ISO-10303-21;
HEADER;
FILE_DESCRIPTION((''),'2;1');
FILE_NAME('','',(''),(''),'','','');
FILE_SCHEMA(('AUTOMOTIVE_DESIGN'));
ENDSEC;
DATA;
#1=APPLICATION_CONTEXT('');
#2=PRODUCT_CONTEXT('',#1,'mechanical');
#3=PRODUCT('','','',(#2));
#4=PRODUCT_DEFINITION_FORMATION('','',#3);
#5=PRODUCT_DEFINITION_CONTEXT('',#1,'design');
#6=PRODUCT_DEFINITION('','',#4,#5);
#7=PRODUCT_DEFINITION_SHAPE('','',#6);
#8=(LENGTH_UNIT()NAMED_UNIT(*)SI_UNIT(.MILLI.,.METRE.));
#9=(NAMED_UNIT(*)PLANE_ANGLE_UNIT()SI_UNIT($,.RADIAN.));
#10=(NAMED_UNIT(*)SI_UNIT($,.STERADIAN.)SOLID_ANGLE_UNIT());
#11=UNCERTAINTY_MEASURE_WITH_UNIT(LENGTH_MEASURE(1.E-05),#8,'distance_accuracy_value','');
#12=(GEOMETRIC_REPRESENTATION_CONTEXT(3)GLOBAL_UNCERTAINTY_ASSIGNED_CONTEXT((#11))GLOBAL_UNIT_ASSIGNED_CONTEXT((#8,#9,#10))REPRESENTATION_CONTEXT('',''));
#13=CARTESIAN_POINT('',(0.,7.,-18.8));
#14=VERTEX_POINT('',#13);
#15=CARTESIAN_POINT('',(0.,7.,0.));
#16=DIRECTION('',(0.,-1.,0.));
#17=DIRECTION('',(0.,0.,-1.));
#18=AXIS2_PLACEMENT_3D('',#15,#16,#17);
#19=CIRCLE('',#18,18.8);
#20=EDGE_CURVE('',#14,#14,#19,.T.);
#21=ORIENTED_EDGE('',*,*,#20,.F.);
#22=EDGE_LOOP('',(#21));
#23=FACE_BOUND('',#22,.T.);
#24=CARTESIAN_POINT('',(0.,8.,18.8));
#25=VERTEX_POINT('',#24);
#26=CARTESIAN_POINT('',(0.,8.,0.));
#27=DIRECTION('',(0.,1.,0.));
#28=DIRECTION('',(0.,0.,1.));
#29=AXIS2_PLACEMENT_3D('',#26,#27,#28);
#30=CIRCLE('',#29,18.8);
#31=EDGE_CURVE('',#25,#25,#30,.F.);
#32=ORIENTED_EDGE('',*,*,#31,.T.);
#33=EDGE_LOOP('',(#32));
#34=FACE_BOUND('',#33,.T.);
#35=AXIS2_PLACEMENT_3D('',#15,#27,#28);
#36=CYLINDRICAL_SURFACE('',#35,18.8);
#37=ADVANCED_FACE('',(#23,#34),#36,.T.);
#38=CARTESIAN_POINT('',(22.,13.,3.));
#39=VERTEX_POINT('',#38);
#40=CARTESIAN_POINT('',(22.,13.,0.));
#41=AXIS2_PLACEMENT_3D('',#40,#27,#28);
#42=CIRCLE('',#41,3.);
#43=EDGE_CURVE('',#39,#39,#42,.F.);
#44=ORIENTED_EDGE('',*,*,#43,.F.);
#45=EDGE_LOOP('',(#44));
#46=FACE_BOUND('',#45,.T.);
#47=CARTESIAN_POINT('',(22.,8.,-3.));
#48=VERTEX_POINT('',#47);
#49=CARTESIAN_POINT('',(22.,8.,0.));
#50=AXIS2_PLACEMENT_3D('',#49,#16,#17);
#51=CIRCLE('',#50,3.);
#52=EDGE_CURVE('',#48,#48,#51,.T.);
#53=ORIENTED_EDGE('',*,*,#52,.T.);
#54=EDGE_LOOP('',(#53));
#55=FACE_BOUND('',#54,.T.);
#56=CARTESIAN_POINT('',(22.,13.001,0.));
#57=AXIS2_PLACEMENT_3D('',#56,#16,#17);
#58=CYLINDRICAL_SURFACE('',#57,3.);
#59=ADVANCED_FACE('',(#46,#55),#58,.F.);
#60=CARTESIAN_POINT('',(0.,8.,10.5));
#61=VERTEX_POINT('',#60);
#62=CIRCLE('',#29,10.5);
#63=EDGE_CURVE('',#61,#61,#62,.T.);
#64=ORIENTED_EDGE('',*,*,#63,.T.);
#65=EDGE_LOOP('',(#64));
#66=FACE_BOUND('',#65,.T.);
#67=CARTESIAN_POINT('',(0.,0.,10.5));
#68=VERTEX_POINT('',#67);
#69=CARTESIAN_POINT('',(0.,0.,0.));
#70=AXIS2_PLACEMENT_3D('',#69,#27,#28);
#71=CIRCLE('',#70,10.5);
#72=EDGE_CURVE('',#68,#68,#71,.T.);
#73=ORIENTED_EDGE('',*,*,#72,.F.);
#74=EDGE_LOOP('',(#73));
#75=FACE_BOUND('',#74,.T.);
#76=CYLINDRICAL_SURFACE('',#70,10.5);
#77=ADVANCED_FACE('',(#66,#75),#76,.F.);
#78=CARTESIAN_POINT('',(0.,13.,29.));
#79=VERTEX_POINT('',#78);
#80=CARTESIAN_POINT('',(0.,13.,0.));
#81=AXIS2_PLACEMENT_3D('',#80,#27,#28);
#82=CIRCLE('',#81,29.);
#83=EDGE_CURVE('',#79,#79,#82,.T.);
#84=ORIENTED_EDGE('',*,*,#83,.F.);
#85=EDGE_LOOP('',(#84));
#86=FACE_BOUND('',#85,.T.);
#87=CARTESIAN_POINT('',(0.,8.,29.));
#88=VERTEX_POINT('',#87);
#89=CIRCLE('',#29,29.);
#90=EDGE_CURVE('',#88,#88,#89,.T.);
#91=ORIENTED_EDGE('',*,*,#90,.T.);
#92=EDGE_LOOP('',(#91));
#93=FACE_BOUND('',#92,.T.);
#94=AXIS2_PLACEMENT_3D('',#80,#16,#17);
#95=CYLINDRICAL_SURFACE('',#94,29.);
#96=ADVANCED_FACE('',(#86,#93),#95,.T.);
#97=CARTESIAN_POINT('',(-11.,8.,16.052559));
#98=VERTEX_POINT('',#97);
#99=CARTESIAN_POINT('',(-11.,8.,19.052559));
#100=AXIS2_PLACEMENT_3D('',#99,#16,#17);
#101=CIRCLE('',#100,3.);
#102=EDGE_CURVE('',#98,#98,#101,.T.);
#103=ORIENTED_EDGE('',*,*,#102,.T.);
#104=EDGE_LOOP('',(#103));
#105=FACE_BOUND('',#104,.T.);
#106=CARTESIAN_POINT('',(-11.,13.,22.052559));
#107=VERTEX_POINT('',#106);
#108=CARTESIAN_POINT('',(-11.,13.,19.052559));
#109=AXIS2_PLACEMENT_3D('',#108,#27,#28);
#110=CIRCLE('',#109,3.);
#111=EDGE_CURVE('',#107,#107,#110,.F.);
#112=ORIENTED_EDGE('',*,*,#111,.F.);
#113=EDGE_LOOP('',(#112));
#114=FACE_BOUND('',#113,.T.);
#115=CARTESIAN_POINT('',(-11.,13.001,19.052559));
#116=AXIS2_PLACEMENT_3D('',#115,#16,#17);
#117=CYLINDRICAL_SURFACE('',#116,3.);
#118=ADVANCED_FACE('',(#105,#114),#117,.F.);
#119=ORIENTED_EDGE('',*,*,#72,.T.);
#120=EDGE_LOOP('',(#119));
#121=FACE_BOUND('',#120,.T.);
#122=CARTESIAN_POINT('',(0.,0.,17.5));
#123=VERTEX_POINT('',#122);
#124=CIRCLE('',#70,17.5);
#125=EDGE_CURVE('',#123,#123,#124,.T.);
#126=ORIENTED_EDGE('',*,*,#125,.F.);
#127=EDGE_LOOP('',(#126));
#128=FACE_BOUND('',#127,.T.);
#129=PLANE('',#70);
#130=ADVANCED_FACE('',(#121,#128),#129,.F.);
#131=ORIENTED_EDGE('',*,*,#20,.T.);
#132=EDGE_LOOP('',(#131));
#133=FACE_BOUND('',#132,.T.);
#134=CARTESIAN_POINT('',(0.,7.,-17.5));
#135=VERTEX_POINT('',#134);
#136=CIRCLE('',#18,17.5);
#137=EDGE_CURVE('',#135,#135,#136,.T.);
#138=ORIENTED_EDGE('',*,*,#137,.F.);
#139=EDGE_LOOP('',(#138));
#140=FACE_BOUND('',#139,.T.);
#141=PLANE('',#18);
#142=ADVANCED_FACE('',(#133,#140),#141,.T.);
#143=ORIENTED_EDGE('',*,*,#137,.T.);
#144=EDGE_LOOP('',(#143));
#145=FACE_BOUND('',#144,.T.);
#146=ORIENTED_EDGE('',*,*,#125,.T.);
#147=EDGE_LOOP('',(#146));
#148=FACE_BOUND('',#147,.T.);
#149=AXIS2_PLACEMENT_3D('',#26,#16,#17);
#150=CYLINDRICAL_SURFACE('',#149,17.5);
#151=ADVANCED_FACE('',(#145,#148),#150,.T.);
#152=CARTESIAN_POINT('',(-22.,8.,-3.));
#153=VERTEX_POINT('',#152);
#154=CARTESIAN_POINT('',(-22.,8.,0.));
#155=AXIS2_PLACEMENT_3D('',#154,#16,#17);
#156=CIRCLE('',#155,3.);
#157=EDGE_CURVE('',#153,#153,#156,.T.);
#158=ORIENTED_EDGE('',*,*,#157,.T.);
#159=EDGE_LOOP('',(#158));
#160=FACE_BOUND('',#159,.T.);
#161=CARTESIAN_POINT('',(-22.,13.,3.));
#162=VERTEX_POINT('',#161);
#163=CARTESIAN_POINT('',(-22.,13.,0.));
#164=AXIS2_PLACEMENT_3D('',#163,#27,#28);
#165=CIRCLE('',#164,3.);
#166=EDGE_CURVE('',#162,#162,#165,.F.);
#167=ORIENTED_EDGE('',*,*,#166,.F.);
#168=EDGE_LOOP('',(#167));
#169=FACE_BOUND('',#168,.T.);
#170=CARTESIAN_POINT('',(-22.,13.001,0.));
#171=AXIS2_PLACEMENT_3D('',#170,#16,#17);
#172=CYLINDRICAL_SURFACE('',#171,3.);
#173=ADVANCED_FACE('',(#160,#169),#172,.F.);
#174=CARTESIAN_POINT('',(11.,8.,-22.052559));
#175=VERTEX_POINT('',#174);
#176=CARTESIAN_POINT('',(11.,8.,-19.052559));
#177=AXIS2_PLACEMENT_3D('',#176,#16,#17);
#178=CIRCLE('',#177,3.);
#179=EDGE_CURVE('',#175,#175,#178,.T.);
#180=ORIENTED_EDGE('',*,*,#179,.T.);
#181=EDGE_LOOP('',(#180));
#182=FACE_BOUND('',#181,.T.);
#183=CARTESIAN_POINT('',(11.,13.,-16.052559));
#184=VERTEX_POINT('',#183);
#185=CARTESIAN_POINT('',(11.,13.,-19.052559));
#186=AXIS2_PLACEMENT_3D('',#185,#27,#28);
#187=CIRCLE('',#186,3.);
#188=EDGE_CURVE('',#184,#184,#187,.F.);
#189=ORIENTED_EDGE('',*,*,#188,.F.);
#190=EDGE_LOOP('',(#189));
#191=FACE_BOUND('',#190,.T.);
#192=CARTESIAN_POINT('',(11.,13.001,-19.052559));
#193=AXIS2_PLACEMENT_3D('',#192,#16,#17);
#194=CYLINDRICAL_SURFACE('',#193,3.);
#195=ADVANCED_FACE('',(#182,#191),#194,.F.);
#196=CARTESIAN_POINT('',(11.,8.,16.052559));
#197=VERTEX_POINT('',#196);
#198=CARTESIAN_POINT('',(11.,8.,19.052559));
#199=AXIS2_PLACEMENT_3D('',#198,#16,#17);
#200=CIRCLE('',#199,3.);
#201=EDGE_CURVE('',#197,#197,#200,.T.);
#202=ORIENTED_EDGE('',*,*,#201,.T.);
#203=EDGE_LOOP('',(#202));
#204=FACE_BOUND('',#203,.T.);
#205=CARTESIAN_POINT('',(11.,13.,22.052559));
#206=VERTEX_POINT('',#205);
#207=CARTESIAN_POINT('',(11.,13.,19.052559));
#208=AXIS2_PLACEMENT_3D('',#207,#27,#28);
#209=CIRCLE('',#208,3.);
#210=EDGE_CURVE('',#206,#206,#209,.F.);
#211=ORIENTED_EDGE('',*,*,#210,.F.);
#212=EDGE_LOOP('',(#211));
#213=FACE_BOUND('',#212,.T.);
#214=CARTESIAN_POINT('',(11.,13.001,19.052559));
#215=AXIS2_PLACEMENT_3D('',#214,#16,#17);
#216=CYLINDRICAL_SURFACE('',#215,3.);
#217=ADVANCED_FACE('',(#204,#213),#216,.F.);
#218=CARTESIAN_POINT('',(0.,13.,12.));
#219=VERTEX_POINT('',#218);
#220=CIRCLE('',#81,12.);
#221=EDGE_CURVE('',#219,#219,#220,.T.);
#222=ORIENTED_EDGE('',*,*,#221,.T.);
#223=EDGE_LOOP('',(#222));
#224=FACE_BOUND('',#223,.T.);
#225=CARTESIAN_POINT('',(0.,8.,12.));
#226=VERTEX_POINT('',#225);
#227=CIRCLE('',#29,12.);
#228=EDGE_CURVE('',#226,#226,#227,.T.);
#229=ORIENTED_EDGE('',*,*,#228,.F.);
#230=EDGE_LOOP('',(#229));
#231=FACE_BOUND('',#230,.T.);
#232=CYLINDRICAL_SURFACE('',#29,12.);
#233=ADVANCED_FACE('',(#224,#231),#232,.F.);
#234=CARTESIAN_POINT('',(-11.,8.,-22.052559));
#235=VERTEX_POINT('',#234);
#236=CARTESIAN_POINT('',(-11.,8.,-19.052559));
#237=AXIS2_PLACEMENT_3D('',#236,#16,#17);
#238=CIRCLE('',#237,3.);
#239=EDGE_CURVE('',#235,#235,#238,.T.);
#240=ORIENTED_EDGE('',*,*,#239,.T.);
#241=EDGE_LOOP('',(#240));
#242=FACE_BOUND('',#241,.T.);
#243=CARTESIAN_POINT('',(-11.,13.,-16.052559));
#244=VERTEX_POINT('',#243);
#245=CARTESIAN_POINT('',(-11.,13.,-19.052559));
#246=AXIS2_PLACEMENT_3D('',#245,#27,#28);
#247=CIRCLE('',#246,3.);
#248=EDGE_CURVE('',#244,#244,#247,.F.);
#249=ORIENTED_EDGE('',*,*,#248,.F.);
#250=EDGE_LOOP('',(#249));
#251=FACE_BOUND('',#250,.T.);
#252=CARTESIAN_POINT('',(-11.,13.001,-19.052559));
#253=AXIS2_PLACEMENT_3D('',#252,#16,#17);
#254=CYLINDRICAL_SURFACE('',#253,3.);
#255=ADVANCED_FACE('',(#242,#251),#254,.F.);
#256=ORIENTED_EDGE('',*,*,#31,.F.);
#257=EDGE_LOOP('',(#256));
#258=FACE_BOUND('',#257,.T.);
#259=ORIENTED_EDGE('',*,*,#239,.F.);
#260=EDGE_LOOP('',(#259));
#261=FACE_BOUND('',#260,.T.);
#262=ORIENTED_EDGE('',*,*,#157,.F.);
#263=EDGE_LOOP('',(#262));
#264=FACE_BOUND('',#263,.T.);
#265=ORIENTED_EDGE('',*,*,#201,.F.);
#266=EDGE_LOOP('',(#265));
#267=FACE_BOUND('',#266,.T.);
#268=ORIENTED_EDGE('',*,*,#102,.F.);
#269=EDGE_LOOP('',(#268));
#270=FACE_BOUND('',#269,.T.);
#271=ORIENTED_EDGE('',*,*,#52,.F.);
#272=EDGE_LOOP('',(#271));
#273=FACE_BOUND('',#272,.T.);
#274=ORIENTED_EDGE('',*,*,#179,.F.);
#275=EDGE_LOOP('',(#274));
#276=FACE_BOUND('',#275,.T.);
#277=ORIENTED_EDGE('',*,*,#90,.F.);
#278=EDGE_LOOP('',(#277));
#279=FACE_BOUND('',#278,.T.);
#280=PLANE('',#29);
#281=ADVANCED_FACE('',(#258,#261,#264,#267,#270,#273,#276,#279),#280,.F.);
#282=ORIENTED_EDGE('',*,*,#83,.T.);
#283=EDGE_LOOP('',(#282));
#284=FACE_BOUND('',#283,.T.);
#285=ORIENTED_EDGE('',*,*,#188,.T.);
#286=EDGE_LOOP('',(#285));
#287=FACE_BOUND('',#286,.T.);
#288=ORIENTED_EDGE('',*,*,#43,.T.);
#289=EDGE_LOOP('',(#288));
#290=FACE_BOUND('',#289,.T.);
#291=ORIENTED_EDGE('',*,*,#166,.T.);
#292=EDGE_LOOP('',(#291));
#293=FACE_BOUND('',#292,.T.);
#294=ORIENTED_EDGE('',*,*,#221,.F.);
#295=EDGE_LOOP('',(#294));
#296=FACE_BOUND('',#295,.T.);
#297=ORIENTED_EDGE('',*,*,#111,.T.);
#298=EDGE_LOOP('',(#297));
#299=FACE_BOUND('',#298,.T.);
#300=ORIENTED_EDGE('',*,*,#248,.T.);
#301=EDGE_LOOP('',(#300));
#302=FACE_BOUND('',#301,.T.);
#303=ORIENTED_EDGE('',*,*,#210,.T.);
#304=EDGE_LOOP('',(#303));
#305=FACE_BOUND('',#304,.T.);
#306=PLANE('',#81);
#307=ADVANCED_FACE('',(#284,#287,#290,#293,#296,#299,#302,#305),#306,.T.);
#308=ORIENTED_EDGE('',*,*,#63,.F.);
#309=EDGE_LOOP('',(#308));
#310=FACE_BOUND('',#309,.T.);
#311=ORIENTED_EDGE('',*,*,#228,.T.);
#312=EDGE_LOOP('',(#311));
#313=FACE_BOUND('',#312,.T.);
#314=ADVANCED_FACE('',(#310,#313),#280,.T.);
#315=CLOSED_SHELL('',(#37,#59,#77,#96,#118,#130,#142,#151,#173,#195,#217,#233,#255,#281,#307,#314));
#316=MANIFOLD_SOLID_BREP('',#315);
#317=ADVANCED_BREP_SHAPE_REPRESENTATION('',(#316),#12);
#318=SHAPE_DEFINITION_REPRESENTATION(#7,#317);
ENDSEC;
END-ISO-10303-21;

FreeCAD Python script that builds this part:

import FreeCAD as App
import Part
import Sketcher
from FreeCAD import Vector
Q = App.Units.Quantity

doc = App.newDocument("Part")
body = doc.addObject("PartDesign::Body", "Body")

# Sketch on XZ plane
sketch1 = body.newObject("Sketcher::SketchObject", "Sketch")
sketch1.AttachmentSupport = (doc.getObject("XZ_Plane"), [""])
sketch1.MapMode = "FlatFace"
sketch1.addGeometry(Part.Circle(Vector(0, 0, 0), Vector(0, 0, 1), 18), False)
sketch1.addConstraint([
    Sketcher.Constraint("Coincident", 0, 3, -1, 1),
    Sketcher.Constraint("Diameter", 0, Q("35 mm")),
])
pad1 = body.newObject("PartDesign::Pad", "Pad")
pad1.Profile = sketch1
pad1.Length = 8
pad1.Reversed = True

# Sketch on XZ plane
sketch2 = body.newObject("Sketcher::SketchObject", "Sketch001")
sketch2.AttachmentSupport = (doc.getObject("XZ_Plane"), [""])
sketch2.MapMode = "FlatFace"
sketch2.AttachmentOffset = App.Placement(Vector(0, 0, -8), App.Rotation())
sketch2.addGeometry(Part.Circle(Vector(0, 0, 0), Vector(0, 0, 1), 29), False)
sketch2.addConstraint([
    Sketcher.Constraint("Coincident", 0, 3, -1, 1),
    Sketcher.Constraint("Diameter", 0, Q("58 mm")),
])
pad2 = body.newObject("PartDesign::Pad", "Pad001")
pad2.Profile = sketch2
pad2.Length = 5
pad2.Reversed = True

# Sketch on XZ plane
sketch3 = body.newObject("Sketcher::SketchObject", "Sketch002")
sketch3.AttachmentSupport = (doc.getObject("XZ_Plane"), [""])
sketch3.MapMode = "FlatFace"
sketch3.AttachmentOffset = App.Placement(Vector(0, 0, -13), App.Rotation())
sketch3.addGeometry(Part.Circle(Vector(0, 0, 0), Vector(0, 0, 1), 12), False)
sketch3.addConstraint([
    Sketcher.Constraint("Coincident", 0, 3, -1, 1),
    Sketcher.Constraint("Diameter", 0, Q("24 mm")),
])
pocket1 = body.newObject("PartDesign::Pocket", "Pocket")
pocket1.Profile = sketch3
pocket1.Length = 5
pocket1.Reversed = True

# Sketch on XZ plane
sketch4 = body.newObject("Sketcher::SketchObject", "Sketch003")
sketch4.AttachmentSupport = (doc.getObject("XZ_Plane"), [""])
sketch4.MapMode = "FlatFace"
sketch4.AttachmentOffset = App.Placement(Vector(0, 0, -8), App.Rotation())
sketch4.addGeometry(Part.Circle(Vector(0, 0, 0), Vector(0, 0, 1), 10), False)
sketch4.addConstraint([
    Sketcher.Constraint("Coincident", 0, 3, -1, 1),
    Sketcher.Constraint("Diameter", 0, Q("21 mm")),
])
pocket2 = body.newObject("PartDesign::Pocket", "Pocket001")
pocket2.Profile = sketch4
pocket2.Type = "ThroughAll"
pocket2.Reversed = True

# Sketch on XZ plane
sketch5 = body.newObject("Sketcher::SketchObject", "Sketch004")
sketch5.AttachmentSupport = (doc.getObject("XZ_Plane"), [""])
sketch5.MapMode = "FlatFace"
sketch5.AttachmentOffset = App.Placement(Vector(0, 0, -8), App.Rotation())
sketch5.addGeometry(Part.Circle(Vector(22, 0, 0), Vector(0, 0, 1), 3), False)
sketch5.addConstraint([
    Sketcher.Constraint("PointOnObject", 0, 3, -1),
    Sketcher.Constraint("Diameter", 0, Q("6 mm")),
    Sketcher.Constraint("DistanceX", -1, 1, 0, 3, Q("22 mm")),
])
pocket3 = body.newObject("PartDesign::Pocket", "Pocket002")
pocket3.Profile = sketch5
pocket3.Type = "UpToFirst"

# Sketch on XZ plane
sketch6 = body.newObject("Sketcher::SketchObject", "Sketch005")
sketch6.AttachmentSupport = (doc.getObject("XZ_Plane"), [""])
sketch6.MapMode = "FlatFace"
sketch6.AttachmentOffset = App.Placement(Vector(0, 0, -8), App.Rotation())
sketch6.addGeometry(Part.Circle(Vector(11, -19.1, 0), Vector(0, 0, 1), 3), False)
sketch6.addConstraint([
    Sketcher.Constraint("Diameter", 0, Q("6 mm")),
    Sketcher.Constraint("DistanceX", -1, 1, 0, 3, Q("11 mm")),
    Sketcher.Constraint("DistanceY", 0, 3, -1, 1, Q("19.052559 mm")),
])
pocket4 = body.newObject("PartDesign::Pocket", "Pocket003")
pocket4.Profile = sketch6
pocket4.Type = "UpToFirst"

# Sketch on XZ plane
sketch7 = body.newObject("Sketcher::SketchObject", "Sketch006")
sketch7.AttachmentSupport = (doc.getObject("XZ_Plane"), [""])
sketch7.MapMode = "FlatFace"
sketch7.AttachmentOffset = App.Placement(Vector(0, 0, -8), App.Rotation())
sketch7.addGeometry(Part.Circle(Vector(-11, -19.1, 0), Vector(0, 0, 1), 3), False)
sketch7.addConstraint([
    Sketcher.Constraint("Diameter", 0, Q("6 mm")),
    Sketcher.Constraint("DistanceX", 0, 3, -1, 1, Q("11 mm")),
    Sketcher.Constraint("DistanceY", 0, 3, -1, 1, Q("19.052559 mm")),
])
pocket5 = body.newObject("PartDesign::Pocket", "Pocket004")
pocket5.Profile = sketch7
pocket5.Type = "UpToFirst"

# Sketch on XZ plane
sketch8 = body.newObject("Sketcher::SketchObject", "Sketch007")
sketch8.AttachmentSupport = (doc.getObject("XZ_Plane"), [""])
sketch8.MapMode = "FlatFace"
sketch8.AttachmentOffset = App.Placement(Vector(0, 0, -8), App.Rotation())
sketch8.addGeometry(Part.Circle(Vector(-22, 0, 0), Vector(0, 0, 1), 3), False)
sketch8.addConstraint([
    Sketcher.Constraint("PointOnObject", 0, 3, -1),
    Sketcher.Constraint("Diameter", 0, Q("6 mm")),
    Sketcher.Constraint("DistanceX", 0, 3, -1, 1, Q("22 mm")),
])
pocket6 = body.newObject("PartDesign::Pocket", "Pocket005")
pocket6.Profile = sketch8
pocket6.Type = "UpToFirst"

# Sketch on XZ plane
sketch9 = body.newObject("Sketcher::SketchObject", "Sketch008")
sketch9.AttachmentSupport = (doc.getObject("XZ_Plane"), [""])
sketch9.MapMode = "FlatFace"
sketch9.AttachmentOffset = App.Placement(Vector(0, 0, -8), App.Rotation())
sketch9.addGeometry(Part.Circle(Vector(-11, 19.1, 0), Vector(0, 0, 1), 3), False)
sketch9.addConstraint([
    Sketcher.Constraint("Diameter", 0, Q("6 mm")),
    Sketcher.Constraint("DistanceX", 0, 3, -1, 1, Q("11 mm")),
    Sketcher.Constraint("DistanceY", -1, 1, 0, 3, Q("19.052559 mm")),
])
pocket7 = body.newObject("PartDesign::Pocket", "Pocket006")
pocket7.Profile = sketch9
pocket7.Type = "UpToFirst"

# Sketch on XZ plane
sketch10 = body.newObject("Sketcher::SketchObject", "Sketch009")
sketch10.AttachmentSupport = (doc.getObject("XZ_Plane"), [""])
sketch10.MapMode = "FlatFace"
sketch10.AttachmentOffset = App.Placement(Vector(0, 0, -8), App.Rotation())
sketch10.addGeometry(Part.Circle(Vector(11, 19.1, 0), Vector(0, 0, 1), 3), False)
sketch10.addConstraint([
    Sketcher.Constraint("Diameter", 0, Q("6 mm")),
    Sketcher.Constraint("DistanceX", -1, 1, 0, 3, Q("11 mm")),
    Sketcher.Constraint("DistanceY", -1, 1, 0, 3, Q("19.052559 mm")),
])
pocket8 = body.newObject("PartDesign::Pocket", "Pocket007")
pocket8.Profile = sketch10
pocket8.Type = "UpToFirst"

# Sketch on XZ plane
sketch11 = body.newObject("Sketcher::SketchObject", "Sketch010")
sketch11.AttachmentSupport = (doc.getObject("XZ_Plane"), [""])
sketch11.MapMode = "FlatFace"
sketch11.AttachmentOffset = App.Placement(Vector(0, 0, -7), App.Rotation())
sketch11.addGeometry([
    Part.Circle(Vector(0, 0, 0), Vector(0, 0, 1), 19),
    Part.Circle(Vector(0, 0, 0), Vector(0, 0, 1), 18),
], False)
sketch11.addConstraint([
    Sketcher.Constraint("Coincident", 0, 3, -1, 1),
    Sketcher.Constraint("Coincident", 1, 3, -1, 1),
    Sketcher.Constraint("Diameter", 1, Q("35 mm")),
    Sketcher.Constraint("Diameter", 0, Q("37.6 mm")),
])
pad3 = body.newObject("PartDesign::Pad", "Pad002")
pad3.Profile = sketch11
pad3.Length = 1
pad3.Reversed = True

doc.recompute()
